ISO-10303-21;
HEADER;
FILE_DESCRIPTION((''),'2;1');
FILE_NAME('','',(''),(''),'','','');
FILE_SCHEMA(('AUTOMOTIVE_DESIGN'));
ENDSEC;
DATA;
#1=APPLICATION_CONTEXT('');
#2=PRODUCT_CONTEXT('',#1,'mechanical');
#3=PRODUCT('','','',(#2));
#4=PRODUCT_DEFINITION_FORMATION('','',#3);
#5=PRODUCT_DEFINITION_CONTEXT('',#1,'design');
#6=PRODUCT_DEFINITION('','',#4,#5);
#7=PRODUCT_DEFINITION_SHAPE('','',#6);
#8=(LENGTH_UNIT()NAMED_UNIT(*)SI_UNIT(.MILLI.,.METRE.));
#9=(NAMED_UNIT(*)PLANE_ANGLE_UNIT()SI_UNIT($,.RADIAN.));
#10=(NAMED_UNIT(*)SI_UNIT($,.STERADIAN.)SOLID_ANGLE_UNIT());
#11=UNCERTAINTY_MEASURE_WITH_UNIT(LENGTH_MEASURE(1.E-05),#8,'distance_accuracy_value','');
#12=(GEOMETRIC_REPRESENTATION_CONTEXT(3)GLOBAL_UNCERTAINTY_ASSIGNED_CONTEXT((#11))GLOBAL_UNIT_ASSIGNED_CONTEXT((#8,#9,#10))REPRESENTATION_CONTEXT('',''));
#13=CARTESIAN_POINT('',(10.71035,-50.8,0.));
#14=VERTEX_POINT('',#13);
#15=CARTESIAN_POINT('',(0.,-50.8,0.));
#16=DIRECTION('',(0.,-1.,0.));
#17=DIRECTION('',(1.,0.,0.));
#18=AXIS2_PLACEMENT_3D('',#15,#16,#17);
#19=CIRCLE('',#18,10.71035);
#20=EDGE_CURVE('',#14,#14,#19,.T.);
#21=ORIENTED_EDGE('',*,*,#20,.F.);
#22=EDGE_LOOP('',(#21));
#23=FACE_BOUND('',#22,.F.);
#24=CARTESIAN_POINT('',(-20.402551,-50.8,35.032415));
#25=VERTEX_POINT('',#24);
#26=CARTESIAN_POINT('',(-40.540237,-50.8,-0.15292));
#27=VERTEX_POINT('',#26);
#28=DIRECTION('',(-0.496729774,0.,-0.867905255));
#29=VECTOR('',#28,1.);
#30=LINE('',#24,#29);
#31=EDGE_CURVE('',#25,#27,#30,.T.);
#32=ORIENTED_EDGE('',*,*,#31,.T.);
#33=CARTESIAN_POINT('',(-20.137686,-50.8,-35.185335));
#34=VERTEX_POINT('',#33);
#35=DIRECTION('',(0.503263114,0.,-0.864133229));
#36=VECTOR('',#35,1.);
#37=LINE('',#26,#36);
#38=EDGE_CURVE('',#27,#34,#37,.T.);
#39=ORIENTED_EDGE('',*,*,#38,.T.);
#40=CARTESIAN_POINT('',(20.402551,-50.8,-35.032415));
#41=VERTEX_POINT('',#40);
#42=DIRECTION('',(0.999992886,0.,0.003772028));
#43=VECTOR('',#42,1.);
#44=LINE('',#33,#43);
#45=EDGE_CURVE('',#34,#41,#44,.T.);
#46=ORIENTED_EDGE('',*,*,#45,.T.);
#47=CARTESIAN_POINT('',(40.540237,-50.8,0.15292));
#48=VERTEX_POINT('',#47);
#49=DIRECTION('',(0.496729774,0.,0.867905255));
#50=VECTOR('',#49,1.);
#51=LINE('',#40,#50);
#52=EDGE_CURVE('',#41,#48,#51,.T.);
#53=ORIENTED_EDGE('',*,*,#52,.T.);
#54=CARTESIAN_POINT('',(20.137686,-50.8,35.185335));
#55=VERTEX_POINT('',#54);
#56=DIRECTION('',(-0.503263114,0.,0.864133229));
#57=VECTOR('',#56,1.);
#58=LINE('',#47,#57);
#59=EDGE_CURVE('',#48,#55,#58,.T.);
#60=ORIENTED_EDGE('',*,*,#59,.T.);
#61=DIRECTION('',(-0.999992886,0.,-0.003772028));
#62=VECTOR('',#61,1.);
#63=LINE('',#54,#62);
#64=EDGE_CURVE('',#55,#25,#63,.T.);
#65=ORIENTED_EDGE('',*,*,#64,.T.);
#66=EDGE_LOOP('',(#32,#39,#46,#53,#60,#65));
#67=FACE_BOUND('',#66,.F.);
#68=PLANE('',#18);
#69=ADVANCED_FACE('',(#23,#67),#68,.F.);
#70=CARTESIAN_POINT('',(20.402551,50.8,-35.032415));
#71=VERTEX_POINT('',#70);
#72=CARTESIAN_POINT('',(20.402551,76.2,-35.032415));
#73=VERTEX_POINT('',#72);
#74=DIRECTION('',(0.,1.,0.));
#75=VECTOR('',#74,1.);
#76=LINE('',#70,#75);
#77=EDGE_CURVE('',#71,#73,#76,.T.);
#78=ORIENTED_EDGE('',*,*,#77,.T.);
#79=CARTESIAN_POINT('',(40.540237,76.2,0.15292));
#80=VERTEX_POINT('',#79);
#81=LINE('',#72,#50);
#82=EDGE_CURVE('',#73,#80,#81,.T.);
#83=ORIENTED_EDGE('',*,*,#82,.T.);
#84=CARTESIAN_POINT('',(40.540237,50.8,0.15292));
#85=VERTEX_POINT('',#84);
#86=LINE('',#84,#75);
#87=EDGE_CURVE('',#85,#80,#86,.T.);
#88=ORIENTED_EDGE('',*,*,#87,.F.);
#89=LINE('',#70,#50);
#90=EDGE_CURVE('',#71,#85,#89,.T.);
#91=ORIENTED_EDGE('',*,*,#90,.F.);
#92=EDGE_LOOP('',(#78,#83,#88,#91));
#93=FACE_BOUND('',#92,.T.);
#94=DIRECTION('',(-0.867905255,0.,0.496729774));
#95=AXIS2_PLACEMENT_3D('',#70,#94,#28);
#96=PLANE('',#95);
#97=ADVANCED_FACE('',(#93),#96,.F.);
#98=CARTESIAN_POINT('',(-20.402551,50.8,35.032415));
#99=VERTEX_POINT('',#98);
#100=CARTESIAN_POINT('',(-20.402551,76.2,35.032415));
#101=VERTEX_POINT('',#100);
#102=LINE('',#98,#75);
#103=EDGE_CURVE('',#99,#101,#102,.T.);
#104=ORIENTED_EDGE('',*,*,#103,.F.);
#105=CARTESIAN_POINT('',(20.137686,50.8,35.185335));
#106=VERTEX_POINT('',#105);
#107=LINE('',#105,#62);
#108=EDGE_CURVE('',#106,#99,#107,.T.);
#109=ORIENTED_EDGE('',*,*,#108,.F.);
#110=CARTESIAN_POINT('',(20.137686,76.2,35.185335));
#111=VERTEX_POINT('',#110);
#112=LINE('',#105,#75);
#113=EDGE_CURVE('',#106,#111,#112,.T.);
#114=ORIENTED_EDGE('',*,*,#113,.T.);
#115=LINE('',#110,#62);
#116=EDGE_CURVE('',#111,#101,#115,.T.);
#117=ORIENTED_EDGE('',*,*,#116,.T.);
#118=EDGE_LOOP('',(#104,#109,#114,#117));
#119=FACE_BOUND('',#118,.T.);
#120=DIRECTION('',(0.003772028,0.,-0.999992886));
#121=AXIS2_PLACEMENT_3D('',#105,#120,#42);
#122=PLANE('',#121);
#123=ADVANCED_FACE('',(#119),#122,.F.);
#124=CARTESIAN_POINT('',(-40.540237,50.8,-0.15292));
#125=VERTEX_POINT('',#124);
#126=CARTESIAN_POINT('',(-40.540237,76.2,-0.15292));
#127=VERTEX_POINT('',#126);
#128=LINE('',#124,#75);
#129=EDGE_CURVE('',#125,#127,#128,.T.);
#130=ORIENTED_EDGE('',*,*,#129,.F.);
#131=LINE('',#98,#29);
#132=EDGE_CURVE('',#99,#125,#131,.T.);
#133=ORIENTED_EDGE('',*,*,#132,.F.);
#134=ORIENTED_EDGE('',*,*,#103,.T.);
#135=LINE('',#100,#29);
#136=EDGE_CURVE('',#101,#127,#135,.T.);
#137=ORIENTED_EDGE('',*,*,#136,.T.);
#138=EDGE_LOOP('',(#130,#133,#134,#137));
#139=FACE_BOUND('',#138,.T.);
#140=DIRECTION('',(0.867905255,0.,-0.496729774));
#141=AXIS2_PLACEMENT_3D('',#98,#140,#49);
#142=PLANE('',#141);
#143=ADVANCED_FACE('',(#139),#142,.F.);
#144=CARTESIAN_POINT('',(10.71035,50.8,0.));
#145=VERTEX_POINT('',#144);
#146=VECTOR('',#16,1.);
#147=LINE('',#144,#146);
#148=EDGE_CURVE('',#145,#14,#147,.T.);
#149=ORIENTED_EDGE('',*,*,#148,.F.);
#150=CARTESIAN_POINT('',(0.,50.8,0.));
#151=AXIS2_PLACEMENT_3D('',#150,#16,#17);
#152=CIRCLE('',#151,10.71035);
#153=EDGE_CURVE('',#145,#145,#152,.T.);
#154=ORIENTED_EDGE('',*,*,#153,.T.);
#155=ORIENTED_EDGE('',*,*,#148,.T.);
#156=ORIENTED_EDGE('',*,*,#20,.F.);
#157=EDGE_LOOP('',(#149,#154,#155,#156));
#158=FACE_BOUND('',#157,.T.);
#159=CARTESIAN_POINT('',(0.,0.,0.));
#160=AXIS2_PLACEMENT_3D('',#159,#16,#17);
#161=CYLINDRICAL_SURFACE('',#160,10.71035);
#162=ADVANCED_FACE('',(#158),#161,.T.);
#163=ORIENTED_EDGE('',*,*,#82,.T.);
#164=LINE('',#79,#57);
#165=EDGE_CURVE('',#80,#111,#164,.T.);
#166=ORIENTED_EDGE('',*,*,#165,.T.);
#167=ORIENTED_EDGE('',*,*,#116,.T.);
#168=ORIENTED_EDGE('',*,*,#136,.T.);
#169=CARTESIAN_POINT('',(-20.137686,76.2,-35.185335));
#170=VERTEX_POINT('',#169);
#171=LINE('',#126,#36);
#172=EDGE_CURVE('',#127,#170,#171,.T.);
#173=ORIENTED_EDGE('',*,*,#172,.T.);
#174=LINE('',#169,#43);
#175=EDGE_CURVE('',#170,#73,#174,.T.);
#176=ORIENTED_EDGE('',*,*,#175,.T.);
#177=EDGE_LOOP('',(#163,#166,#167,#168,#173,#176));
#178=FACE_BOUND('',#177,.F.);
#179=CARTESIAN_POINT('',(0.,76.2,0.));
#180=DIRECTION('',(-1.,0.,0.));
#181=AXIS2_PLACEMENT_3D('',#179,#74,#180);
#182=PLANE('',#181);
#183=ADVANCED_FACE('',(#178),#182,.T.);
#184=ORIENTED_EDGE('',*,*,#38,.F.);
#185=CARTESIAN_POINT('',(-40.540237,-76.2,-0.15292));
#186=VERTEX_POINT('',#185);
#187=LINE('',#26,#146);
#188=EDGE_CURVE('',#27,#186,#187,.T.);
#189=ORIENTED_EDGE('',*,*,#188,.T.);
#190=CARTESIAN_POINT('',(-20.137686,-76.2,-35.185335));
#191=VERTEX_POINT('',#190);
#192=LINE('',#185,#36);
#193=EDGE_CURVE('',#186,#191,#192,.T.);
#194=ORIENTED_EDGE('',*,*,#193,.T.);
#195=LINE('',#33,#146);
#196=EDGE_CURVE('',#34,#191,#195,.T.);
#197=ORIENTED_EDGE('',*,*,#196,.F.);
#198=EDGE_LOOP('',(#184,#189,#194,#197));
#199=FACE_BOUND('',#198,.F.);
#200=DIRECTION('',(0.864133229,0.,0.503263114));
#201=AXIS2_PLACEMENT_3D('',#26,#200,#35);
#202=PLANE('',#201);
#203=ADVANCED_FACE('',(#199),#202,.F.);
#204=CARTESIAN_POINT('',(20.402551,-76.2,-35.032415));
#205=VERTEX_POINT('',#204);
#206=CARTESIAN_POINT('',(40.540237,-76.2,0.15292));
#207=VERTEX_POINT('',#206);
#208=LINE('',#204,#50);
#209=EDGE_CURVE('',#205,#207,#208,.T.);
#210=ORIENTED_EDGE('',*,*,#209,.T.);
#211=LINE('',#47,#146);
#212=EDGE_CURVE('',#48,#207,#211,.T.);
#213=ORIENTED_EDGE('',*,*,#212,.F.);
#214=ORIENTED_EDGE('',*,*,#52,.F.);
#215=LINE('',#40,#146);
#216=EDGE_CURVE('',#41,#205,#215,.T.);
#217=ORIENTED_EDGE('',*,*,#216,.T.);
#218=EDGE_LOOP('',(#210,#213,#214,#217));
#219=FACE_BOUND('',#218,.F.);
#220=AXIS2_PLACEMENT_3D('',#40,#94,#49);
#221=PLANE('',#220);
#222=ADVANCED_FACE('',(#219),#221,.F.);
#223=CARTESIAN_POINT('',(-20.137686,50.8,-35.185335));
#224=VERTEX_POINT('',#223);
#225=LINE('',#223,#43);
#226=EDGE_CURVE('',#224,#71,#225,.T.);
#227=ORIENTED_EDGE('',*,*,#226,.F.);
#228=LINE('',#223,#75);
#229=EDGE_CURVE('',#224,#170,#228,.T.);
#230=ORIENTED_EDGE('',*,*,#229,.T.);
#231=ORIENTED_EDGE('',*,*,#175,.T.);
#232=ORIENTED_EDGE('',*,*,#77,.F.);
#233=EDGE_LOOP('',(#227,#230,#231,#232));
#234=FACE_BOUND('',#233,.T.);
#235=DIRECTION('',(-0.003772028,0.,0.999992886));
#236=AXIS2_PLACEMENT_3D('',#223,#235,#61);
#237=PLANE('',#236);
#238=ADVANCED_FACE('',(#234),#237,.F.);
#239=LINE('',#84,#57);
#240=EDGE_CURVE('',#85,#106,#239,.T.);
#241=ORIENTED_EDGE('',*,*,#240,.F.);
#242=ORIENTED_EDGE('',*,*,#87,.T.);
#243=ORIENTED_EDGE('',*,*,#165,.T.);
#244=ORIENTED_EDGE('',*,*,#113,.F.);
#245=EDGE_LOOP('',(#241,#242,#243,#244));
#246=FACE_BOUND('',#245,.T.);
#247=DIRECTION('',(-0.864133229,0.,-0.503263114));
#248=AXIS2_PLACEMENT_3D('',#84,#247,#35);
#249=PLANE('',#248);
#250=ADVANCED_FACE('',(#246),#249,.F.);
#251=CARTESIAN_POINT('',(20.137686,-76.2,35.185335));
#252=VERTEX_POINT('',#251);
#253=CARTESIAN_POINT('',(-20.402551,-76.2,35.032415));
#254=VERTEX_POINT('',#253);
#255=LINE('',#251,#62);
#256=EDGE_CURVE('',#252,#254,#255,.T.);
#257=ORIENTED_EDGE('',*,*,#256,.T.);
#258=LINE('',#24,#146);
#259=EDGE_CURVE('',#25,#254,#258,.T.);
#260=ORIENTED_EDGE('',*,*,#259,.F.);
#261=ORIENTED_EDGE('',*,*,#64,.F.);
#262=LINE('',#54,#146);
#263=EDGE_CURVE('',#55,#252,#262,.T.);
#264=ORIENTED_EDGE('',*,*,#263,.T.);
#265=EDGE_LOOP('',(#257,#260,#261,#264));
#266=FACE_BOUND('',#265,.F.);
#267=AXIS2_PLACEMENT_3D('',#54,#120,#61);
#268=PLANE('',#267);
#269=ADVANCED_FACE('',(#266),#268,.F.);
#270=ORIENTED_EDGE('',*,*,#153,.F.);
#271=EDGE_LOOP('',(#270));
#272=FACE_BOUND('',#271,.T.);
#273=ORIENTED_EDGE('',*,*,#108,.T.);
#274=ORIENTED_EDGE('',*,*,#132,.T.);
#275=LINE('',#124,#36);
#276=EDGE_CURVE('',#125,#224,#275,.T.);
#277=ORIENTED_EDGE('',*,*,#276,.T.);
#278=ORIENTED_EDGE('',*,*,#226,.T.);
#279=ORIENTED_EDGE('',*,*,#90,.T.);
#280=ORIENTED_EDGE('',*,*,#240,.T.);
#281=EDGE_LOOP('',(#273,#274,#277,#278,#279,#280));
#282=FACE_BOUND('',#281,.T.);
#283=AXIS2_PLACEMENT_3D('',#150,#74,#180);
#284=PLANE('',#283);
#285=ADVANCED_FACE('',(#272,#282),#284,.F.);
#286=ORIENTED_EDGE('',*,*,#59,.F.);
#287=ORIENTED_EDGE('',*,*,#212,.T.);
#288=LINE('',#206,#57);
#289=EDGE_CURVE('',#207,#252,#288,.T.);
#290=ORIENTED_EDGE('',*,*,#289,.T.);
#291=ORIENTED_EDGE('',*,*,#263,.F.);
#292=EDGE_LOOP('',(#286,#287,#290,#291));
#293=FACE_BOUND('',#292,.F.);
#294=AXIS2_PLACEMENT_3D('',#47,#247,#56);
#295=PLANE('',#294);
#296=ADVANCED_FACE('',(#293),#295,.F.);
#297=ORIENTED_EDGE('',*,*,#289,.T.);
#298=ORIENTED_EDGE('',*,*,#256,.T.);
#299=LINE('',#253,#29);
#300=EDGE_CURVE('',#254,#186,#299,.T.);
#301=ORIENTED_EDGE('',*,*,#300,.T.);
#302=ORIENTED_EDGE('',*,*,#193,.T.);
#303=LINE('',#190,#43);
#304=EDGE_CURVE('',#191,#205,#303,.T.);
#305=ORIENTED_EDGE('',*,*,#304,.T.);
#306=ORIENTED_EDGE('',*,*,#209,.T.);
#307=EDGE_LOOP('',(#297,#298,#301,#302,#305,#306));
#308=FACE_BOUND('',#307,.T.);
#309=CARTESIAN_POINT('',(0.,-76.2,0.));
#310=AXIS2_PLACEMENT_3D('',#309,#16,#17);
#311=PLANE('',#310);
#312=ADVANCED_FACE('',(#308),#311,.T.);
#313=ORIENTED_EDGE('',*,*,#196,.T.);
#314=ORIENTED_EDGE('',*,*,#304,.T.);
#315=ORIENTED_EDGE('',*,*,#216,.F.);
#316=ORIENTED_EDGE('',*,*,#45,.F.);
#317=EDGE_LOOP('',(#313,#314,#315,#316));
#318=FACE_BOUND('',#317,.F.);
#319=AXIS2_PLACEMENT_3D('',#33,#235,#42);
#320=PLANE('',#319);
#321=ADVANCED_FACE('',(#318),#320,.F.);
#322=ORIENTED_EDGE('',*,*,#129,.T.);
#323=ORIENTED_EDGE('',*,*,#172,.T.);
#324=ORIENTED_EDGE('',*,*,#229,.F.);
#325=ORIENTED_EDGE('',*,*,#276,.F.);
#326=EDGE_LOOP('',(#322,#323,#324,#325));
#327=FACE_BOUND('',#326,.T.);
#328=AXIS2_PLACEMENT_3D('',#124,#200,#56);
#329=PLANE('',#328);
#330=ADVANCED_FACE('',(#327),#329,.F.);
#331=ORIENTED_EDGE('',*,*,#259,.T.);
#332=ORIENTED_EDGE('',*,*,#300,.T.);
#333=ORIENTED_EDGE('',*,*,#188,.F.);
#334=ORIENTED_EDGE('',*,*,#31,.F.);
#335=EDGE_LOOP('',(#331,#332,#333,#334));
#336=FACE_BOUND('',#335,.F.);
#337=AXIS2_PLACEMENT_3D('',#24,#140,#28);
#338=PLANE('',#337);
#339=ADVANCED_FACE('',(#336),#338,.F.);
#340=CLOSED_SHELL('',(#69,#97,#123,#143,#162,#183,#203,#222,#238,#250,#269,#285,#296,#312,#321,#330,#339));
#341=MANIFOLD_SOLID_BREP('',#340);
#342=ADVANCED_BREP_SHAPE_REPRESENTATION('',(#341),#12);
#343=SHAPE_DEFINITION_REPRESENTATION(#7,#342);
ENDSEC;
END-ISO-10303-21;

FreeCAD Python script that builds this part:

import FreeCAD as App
import Part
import Sketcher
Q = App.Units.Quantity


def add_polygon(sketch, points):
    """Adds a closed chain of lines whose ends are joined by coincident constraints."""
    first, n = sketch.GeometryCount, len(points)
    for a, b in zip(points, points[1:] + points[:1]):
        sketch.addGeometry(Part.LineSegment(App.Vector(*a, 0), App.Vector(*b, 0)), False)
    for i in range(n):
        sketch.addConstraint(Sketcher.Constraint("Coincident", first + i, 2, first + (i + 1) % n, 1))

doc = App.newDocument("Part")
body = doc.addObject("PartDesign::Body", "Body")

sketch1 = body.newObject("Sketcher::SketchObject", "Sketch")
sketch1.AttachmentSupport = (doc.getObject("XZ_Plane"), [""])
sketch1.MapMode = "FlatFace"
sketch1.addGeometry(Part.Circle(App.Vector(0, 0, 0), App.Vector(0, 0, 1), 11), False)
sketch1.addConstraint([
    Sketcher.Constraint("Coincident", 0, 3, -1, 1),
    Sketcher.Constraint("Diameter", 0, 21.4207),
])
pad1 = body.newObject("PartDesign::Pad", "Pad")
pad1.Profile = sketch1
pad1.Length = Q("2 in")

sketch2 = body.newObject("Sketcher::SketchObject", "Sketch001")
sketch2.AttachmentSupport = (doc.getObject("XZ_Plane"), [""])
sketch2.MapMode = "FlatFace"
sketch2.AttachmentOffset = App.Placement(App.Vector(0, 0, 2 * 25.4), App.Rotation())
add_polygon(sketch2, [(20, -35), (41, 0), (20, 35), (-20, 35), (-41, 0), (-20, -35)])
sketch2.addConstraint([
    Sketcher.Constraint("Symmetric", 0, 2, 3, 2, -1, 1),
    Sketcher.Constraint("Symmetric", 1, 2, 4, 2, -1, 1),
    Sketcher.Constraint("Symmetric", 2, 2, 5, 2, -1, 1),
    Sketcher.Constraint("Equal", 0, 1),
    Sketcher.Constraint("Equal", 1, 2),
    Sketcher.Constraint("DistanceX", 2, 2, 5, 2, Q("1.6065001 in")),
    Sketcher.Constraint("DistanceY", -1, 1, 0, 2, 0.15292),
    Sketcher.Constraint("DistanceX", 1, 2, 0, 2, 20.402551),
    Sketcher.Constraint("DistanceY", 2, 2, 1, 2, 0.15292),
])
pad2 = body.newObject("PartDesign::Pad", "Pad001")
pad2.Profile = sketch2
pad2.Length = Q("1 in")
body2 = doc.addObject("PartDesign::Body", "Body001")
doc.recompute()

body2.BaseFeature = body
doc.recompute()

mirroring = doc.addObject("Part::Mirroring", "Mirroring")
mirroring.Source = body
mirroring.Base = App.Vector(0, 0, 0)
mirroring.Normal = App.Vector(0, -1, 0)
body3 = doc.addObject("PartDesign::Body", "Body002")
body3.BaseFeature = mirroring
boolean = body2.newObject("PartDesign::Boolean", "Boolean")
boolean.Type = "Fuse"
boolean.addObjects([body3])
doc.recompute()
mirroring.Visibility = False

doc.recompute()
